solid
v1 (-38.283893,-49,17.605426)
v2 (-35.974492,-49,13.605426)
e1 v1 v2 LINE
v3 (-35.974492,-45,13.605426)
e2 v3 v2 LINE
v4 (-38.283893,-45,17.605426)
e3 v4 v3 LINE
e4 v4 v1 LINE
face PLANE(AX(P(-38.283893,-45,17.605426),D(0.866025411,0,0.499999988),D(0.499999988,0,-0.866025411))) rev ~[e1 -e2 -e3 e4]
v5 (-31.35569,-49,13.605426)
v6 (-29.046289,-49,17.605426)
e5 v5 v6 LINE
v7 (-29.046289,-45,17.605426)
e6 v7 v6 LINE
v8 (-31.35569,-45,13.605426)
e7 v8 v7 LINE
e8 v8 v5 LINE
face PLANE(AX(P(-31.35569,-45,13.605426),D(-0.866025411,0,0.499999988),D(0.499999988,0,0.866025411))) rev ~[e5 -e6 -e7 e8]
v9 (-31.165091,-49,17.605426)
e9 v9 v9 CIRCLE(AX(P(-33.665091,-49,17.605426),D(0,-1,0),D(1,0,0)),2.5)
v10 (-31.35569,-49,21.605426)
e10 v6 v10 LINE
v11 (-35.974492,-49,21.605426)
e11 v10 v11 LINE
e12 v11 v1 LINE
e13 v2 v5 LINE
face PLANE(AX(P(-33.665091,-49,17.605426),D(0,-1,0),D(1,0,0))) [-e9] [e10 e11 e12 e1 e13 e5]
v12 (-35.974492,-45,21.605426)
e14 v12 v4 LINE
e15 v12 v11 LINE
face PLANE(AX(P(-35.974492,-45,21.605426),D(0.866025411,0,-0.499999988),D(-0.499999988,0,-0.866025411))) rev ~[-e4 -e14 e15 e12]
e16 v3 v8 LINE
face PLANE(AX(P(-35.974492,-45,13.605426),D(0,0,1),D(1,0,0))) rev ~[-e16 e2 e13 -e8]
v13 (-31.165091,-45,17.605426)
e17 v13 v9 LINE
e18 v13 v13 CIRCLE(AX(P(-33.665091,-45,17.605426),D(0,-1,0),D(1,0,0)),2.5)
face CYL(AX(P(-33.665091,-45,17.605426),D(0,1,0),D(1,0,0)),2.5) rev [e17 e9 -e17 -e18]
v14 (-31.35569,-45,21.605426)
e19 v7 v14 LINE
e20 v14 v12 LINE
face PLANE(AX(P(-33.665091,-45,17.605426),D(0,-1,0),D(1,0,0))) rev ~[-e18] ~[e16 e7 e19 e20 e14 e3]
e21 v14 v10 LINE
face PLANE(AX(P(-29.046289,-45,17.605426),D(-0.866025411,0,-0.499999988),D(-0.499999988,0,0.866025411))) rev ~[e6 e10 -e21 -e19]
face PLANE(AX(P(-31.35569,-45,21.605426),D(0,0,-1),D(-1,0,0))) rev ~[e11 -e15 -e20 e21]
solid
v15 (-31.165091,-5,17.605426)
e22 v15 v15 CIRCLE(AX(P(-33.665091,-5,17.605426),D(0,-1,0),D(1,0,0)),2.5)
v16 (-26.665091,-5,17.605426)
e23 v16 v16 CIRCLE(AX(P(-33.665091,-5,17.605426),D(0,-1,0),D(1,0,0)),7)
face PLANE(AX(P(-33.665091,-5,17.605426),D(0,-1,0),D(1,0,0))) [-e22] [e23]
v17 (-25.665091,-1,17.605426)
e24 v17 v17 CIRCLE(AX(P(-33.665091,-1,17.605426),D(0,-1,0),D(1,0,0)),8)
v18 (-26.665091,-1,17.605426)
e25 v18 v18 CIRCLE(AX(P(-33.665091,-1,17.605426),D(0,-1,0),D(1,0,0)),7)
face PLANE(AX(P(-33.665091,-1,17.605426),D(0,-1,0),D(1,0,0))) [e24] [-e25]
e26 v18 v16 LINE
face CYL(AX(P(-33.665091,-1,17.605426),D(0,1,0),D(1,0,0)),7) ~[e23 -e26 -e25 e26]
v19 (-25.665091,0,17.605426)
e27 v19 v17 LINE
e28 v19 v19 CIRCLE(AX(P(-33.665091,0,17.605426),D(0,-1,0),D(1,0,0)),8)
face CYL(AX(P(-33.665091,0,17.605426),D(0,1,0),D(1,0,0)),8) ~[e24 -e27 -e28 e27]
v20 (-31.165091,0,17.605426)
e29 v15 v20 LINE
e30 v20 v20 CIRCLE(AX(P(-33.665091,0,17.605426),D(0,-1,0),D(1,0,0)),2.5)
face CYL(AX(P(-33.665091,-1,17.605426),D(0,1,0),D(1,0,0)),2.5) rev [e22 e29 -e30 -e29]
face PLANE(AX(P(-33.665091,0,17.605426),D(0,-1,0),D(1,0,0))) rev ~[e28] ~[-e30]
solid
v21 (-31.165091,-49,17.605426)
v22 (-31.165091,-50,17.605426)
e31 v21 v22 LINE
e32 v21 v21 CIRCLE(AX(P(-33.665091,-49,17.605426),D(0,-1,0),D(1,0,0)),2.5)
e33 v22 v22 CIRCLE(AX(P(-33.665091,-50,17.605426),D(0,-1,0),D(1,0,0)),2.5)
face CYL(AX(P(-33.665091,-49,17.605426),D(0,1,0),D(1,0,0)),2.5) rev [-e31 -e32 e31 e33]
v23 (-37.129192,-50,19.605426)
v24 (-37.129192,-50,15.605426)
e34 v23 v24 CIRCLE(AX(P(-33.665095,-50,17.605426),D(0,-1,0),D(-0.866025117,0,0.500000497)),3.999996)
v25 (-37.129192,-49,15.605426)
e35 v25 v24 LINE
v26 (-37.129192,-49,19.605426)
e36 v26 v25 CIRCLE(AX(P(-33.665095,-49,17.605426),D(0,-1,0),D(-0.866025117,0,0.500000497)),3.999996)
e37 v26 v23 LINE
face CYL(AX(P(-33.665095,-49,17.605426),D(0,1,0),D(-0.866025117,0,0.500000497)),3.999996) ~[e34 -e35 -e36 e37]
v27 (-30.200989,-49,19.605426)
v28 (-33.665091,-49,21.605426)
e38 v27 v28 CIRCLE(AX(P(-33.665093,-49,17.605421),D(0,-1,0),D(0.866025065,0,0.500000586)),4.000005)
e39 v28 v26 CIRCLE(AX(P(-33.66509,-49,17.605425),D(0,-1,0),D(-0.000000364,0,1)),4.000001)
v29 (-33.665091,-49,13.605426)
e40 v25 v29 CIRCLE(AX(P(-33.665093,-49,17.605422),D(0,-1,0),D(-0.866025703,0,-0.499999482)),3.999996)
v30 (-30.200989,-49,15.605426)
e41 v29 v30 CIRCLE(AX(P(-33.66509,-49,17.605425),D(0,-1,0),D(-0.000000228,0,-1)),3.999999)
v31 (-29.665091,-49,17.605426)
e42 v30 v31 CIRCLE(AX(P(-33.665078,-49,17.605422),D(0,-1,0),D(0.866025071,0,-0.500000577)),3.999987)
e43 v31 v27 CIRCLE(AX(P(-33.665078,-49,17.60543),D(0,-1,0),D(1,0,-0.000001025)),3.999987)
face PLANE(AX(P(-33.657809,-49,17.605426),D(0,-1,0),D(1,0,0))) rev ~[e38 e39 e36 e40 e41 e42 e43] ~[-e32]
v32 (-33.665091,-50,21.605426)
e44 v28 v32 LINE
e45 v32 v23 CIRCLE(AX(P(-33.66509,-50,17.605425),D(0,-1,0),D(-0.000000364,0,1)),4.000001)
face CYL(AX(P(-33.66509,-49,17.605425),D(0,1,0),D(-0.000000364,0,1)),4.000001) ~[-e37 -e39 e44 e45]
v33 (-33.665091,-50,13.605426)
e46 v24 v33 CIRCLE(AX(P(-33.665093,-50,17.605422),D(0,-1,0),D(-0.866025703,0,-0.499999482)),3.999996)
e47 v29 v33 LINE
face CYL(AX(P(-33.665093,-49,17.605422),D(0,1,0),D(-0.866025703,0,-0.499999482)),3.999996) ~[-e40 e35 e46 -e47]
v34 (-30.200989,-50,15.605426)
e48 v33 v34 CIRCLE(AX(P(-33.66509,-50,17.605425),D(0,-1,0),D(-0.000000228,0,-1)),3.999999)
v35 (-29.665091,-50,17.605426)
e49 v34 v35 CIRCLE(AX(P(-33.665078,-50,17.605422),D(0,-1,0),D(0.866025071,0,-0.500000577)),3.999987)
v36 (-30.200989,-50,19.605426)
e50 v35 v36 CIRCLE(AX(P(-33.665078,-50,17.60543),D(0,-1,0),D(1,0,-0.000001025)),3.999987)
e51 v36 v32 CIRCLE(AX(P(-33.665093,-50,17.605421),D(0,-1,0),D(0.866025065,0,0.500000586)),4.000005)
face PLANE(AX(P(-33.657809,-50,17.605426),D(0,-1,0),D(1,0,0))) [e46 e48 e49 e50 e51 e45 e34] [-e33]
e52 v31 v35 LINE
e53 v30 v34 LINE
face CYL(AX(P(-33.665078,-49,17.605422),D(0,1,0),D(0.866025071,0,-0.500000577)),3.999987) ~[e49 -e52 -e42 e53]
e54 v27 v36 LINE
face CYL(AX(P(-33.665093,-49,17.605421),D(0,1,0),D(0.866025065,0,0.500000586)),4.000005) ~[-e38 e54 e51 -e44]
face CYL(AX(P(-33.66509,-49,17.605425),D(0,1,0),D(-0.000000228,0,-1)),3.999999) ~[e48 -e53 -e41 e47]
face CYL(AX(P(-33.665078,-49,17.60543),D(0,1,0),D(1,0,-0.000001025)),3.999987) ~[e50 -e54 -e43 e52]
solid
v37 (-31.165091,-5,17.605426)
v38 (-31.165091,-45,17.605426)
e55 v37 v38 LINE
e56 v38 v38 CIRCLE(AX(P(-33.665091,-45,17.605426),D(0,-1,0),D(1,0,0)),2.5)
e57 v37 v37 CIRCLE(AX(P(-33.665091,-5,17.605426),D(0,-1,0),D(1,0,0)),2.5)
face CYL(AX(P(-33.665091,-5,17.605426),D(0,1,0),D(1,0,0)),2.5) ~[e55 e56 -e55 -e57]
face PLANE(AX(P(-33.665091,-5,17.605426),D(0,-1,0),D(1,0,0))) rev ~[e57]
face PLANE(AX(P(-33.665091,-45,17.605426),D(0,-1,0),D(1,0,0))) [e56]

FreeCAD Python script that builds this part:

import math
import FreeCAD as App
import Part
import Sketcher
Q = App.Units.Quantity

doc = App.newDocument("Part")
body = doc.addObject("PartDesign::Body", "Body")

sketch1 = body.newObject("Sketcher::SketchObject", "Sketch")
sketch1.AttachmentSupport = (doc.getObject("XZ_Plane"), [""])
sketch1.MapMode = "FlatFace"
sketch1.addGeometry([
    Part.Circle(App.Vector(-33.7, 17.6, 0), App.Vector(0, 0, 1), 8),
    Part.Circle(App.Vector(-33.7, 17.6, 0), App.Vector(0, 0, 1), 2.5),
], False)
sketch1.addConstraint([
    Sketcher.Constraint("Coincident", 1, 3, 0, 3),
    Sketcher.Constraint("Diameter", 0, 16.0),
    Sketcher.Constraint("Diameter", 1, 5.0),
    Sketcher.Constraint("DistanceX", 0, 3, -1, 1, 33.665091),
    Sketcher.Constraint("DistanceY", -1, 1, 0, 3, 17.605426),
])
pad1 = body.newObject("PartDesign::Pad", "Pad")
pad1.Profile = sketch1
pad1.Length = 1

sketch2 = body.newObject("Sketcher::SketchObject", "Sketch001")
sketch2.AttachmentSupport = (doc.getObject("XZ_Plane"), [""])
sketch2.MapMode = "FlatFace"
sketch2.AttachmentOffset = App.Placement(App.Vector(0, 0, 1), App.Rotation())
sketch2.addGeometry([
    Part.Circle(App.Vector(-33.7, 17.6, 0), App.Vector(0, 0, 1), 7),
    Part.Circle(App.Vector(-33.7, 17.6, 0), App.Vector(0, 0, 1), 2.5),
], False)
sketch2.addConstraint([
    Sketcher.Constraint("Coincident", 1, 3, 0, 3),
    Sketcher.Constraint("Diameter", 0, 14.0),
    Sketcher.Constraint("Diameter", 1, 5.0),
    Sketcher.Constraint("DistanceX", 0, 3, -1, 1, 33.665091),
    Sketcher.Constraint("DistanceY", -1, 1, 0, 3, 17.605426),
])
pad2 = body.newObject("PartDesign::Pad", "Pad001")
pad2.Profile = sketch2
pad2.Length = 4
body2 = doc.addObject("PartDesign::Body", "Body001")

sketch3 = body2.newObject("Sketcher::SketchObject", "Sketch002")
sketch3.AttachmentSupport = (doc.getObject("XZ_Plane001"), [""])
sketch3.MapMode = "FlatFace"
sketch3.AttachmentOffset = App.Placement(App.Vector(0, 0, 5), App.Rotation())
sketch3.addGeometry(Part.Circle(App.Vector(-33.7, 17.6, 0), App.Vector(0, 0, 1), 2.5), False)
sketch3.addConstraint([
    Sketcher.Constraint("Diameter", 0, 5.0),
    Sketcher.Constraint("DistanceX", 0, 3, -1, 1, 33.665091),
    Sketcher.Constraint("DistanceY", -1, 1, 0, 3, 17.605426),
])
pad3 = body2.newObject("PartDesign::Pad", "Pad002")
pad3.Profile = sketch3
pad3.Length = 40
body3 = doc.addObject("PartDesign::Body", "Body002")

sketch4 = body3.newObject("Sketcher::SketchObject", "Sketch003")
sketch4.AttachmentSupport = (doc.getObject("XZ_Plane002"), [""])
sketch4.MapMode = "FlatFace"
sketch4.AttachmentOffset = App.Placement(App.Vector(0, 0, 45), App.Rotation())
sketch4.addGeometry([
    Part.LineSegment(App.Vector(-31.4, 13.6, 0), App.Vector(-29, 17.6, 0)),
    Part.LineSegment(App.Vector(-29, 17.6, 0), App.Vector(-31.4, 21.6, 0)),
    Part.LineSegment(App.Vector(-31.4, 21.6, 0), App.Vector(-36, 21.6, 0)),
    Part.LineSegment(App.Vector(-36, 21.6, 0), App.Vector(-38.3, 17.6, 0)),
    Part.LineSegment(App.Vector(-38.3, 17.6, 0), App.Vector(-36, 13.6, 0)),
    Part.LineSegment(App.Vector(-36, 13.6, 0), App.Vector(-31.4, 13.6, 0)),
    Part.Circle(App.Vector(-33.7, 17.6, 0), App.Vector(0, 0, 1), 2.5),
], False)
sketch4.addConstraint([
    Sketcher.Constraint("Coincident", 0, 2, 1, 1),
    Sketcher.Constraint("Coincident", 1, 2, 2, 1),
    Sketcher.Constraint("Coincident", 2, 2, 3, 1),
    Sketcher.Constraint("Coincident", 3, 2, 4, 1),
    Sketcher.Constraint("Coincident", 4, 2, 5, 1),
    Sketcher.Constraint("Coincident", 5, 2, 0, 1),
    Sketcher.Constraint("Horizontal", 2),
    Sketcher.Constraint("Horizontal", 5),
    Sketcher.Constraint("Parallel", 0, 3),
    Sketcher.Constraint("Parallel", 1, 4),
    Sketcher.Constraint("Horizontal", 6, 3, 0, 2),
    Sketcher.Constraint("Horizontal", 0, 2, 3, 2),
    Sketcher.Constraint("Vertical", 2, 2, 4, 2),
    Sketcher.Constraint("Vertical", 1, 2, 5, 2),
    Sketcher.Constraint("Diameter", 6, 5.0),
    Sketcher.Constraint("Angle", 0, Q("60.000001 deg")),
    Sketcher.Constraint("DistanceY", 6, 3, 1, 2, 4.0),
    Sketcher.Constraint("DistanceX", 2, 2, 2, 1, 4.618802),
    Sketcher.Constraint("DistanceX", 6, 3, 0, 2, 4.618802),
    Sketcher.Constraint("DistanceX", 6, 3, -1, 1, 33.665091),
    Sketcher.Constraint("DistanceY", -1, 1, 6, 3, 17.605426),
])
pad4 = body3.newObject("PartDesign::Pad", "Pad003")
pad4.Profile = sketch4
pad4.Length = 4
body4 = doc.addObject("PartDesign::Body", "Body003")

sketch5 = body4.newObject("Sketcher::SketchObject", "Sketch004")
sketch5.AttachmentSupport = (doc.getObject("XZ_Plane003"), [""])
sketch5.MapMode = "FlatFace"
sketch5.AttachmentOffset = App.Placement(App.Vector(0, 0, 49), App.Rotation())
sketch5.addGeometry([
    Part.ArcOfCircle(Part.Circle(App.Vector(-33.7, 17.6, 0), App.Vector(0, 0, 1), 4), math.radians(-30), math.radians(0)),
    Part.ArcOfCircle(Part.Circle(App.Vector(-33.7, 17.6, 0), App.Vector(0, 0, 1), 4), math.radians(0), math.radians(30)),
    Part.ArcOfCircle(Part.Circle(App.Vector(-33.7, 17.6, 0), App.Vector(0, 0, 1), 4), math.radians(30), math.radians(90)),
    Part.ArcOfCircle(Part.Circle(App.Vector(-33.7, 17.6, 0), App.Vector(0, 0, 1), 4), math.radians(90), math.radians(150)),
    Part.ArcOfCircle(Part.Circle(App.Vector(-33.7, 17.6, 0), App.Vector(0, 0, 1), 4), math.radians(150), math.radians(210)),
    Part.ArcOfCircle(Part.Circle(App.Vector(-33.7, 17.6, 0), App.Vector(0, 0, 1), 4), math.radians(-150), math.radians(-90)),
    Part.ArcOfCircle(Part.Circle(App.Vector(-33.7, 17.6, 0), App.Vector(0, 0, 1), 4), math.radians(-90), math.radians(-30)),
    Part.Circle(App.Vector(-33.7, 17.6, 0), App.Vector(0, 0, 1), 2.5),
], False)
sketch5.addConstraint([
    Sketcher.Constraint("Coincident", 0, 2, 1, 1),
    Sketcher.Constraint("Tangent", 1, 2, 2, 1),
    Sketcher.Constraint("Tangent", 2, 2, 3, 1),
    Sketcher.Constraint("Tangent", 3, 2, 4, 1),
    Sketcher.Constraint("Tangent", 4, 2, 5, 1),
    Sketcher.Constraint("Tangent", 5, 2, 6, 1),
    Sketcher.Constraint("Tangent", 6, 2, 0, 1),
    Sketcher.Constraint("Coincident", 1, 3, 0, 3),
    Sketcher.Constraint("Coincident", 4, 3, 2, 3),
    Sketcher.Constraint("Coincident", 7, 3, 2, 3),
    Sketcher.Constraint("Equal", 4, 5),
    Sketcher.Constraint("Horizontal", 7, 3, 0, 2),
    Sketcher.Constraint("Horizontal", 1, 2, 3, 2),
    Sketcher.Constraint("Horizontal", 4, 2, 6, 2),
    Sketcher.Constraint("Vertical", 7, 3, 2, 2),
    Sketcher.Constraint("Vertical", 3, 2, 4, 2),
    Sketcher.Constraint("Vertical", 2, 2, 5, 2),
    Sketcher.Constraint("Diameter", 7, 5.0),
    Sketcher.Constraint("Radius", 3, 4.000001),
    Sketcher.Constraint("DistanceY", 0, 2, 1, 2, 2.0),
    Sketcher.Constraint("DistanceX", 0, 3, -1, 1, 33.665078),
    Sketcher.Constraint("DistanceY", -1, 1, 0, 3, 17.605422),
])
pad5 = body4.newObject("PartDesign::Pad", "Pad004")
pad5.Profile = sketch5
pad5.Length = 1

doc.recompute()
